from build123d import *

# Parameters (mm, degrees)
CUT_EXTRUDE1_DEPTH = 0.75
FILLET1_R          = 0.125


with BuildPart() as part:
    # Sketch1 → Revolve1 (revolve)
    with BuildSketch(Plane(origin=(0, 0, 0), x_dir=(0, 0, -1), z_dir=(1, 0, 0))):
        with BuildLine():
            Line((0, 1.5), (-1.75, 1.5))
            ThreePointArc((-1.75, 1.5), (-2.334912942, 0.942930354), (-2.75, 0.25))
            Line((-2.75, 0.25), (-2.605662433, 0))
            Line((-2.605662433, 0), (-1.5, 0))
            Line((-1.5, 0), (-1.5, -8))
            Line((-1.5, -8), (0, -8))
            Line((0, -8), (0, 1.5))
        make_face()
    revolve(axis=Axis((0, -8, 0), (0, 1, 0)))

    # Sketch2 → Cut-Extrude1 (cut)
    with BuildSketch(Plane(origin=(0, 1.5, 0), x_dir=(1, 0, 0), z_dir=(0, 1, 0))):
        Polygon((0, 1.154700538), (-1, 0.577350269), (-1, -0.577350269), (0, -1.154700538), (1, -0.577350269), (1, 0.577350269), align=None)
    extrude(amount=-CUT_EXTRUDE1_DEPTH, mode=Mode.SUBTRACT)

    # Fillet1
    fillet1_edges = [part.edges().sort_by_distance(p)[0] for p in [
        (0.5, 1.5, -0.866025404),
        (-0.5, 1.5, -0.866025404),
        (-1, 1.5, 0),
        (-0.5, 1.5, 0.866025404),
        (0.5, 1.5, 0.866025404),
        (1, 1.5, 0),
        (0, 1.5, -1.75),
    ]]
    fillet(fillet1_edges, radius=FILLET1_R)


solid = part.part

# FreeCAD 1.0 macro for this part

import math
import FreeCAD as App
import Part
import Sketcher
Q = App.Units.Quantity


def edges_at(feature, points):
    """Names of the edges that pass closest to the given points."""
    edges = feature.Shape.Edges
    near = lambda p: min(range(len(edges)), key=lambda i: edges[i].distToShape(Part.Vertex(*p))[0])
    return sorted({f"Edge{near(p) + 1}" for p in points})


def add_polygon(sketch, points):
    """Adds a closed chain of lines whose ends are joined by coincident constraints."""
    first, n = sketch.GeometryCount, len(points)
    for a, b in zip(points, points[1:] + points[:1]):
        sketch.addGeometry(Part.LineSegment(App.Vector(*a, 0), App.Vector(*b, 0)), False)
    for i in range(n):
        sketch.addConstraint(Sketcher.Constraint("Coincident", first + i, 2, first + (i + 1) % n, 1))

doc = App.newDocument("Part")
params = doc.addObject("Spreadsheet::Sheet", "Params")
for row, (alias, value) in enumerate([
    ("sketch1_radius", "3 mm"),
    ("sketch1_width", "8 mm"),
    ("sketch1_width2", "9.5 mm"),
    ("sketch1_height", "1.5 mm"),
    ("sketch1_height2", "1.75 mm"),
    ("revolution_angle", "360 deg"),
    ("pocket1_length", "0.75 mm"),
    ("fillet_radius", "0.125 mm"),
], start=1):
    params.set(f"A{row}", alias)
    params.set(f"B{row}", "=" + value)
    params.setAlias(f"B{row}", alias)

body = doc.addObject("PartDesign::Body", "Body")

# Sketch on YZ plane
sketch1 = doc.addObject("Sketcher::SketchObject", "Sketch")
body.addObject(sketch1)
sketch1.AttachmentSupport = (doc.YZ_Plane, [""])
sketch1.MapMode = "FlatFace"
sketch1.addGeometry(Part.LineSegment(App.Vector(1.5, 0, 0), App.Vector(1.5, 1.75, 0)), False)
sketch1.addGeometry(Part.ArcOfCircle(Part.Circle(App.Vector(-0.931155, -0.007693, 0), App.Vector(0, 0, 1), 3), math.radians(35.866443), math.radians(66.813941)), False)
sketch1.addGeometry(Part.LineSegment(App.Vector(0.25, 2.75, 0), App.Vector(0, 2.605662, 0)), False)
sketch1.addGeometry(Part.LineSegment(App.Vector(0, 2.605662, 0), App.Vector(0, 1.5, 0)), False)
sketch1.addGeometry(Part.LineSegment(App.Vector(0, 1.5, 0), App.Vector(-8, 1.5, 0)), False)
sketch1.addGeometry(Part.LineSegment(App.Vector(-8, 1.5, 0), App.Vector(-8, 0, 0)), False)
sketch1.addGeometry(Part.LineSegment(App.Vector(-8, 0, 0), App.Vector(1.5, 0, 0)), False)
sketch1.addConstraint(Sketcher.Constraint("Coincident", 0, 2, 1, 1))
sketch1.addConstraint(Sketcher.Constraint("Coincident", 1, 2, 2, 1))
sketch1.addConstraint(Sketcher.Constraint("Coincident", 2, 2, 3, 1))
sketch1.addConstraint(Sketcher.Constraint("Coincident", 3, 2, 4, 1))
sketch1.addConstraint(Sketcher.Constraint("Coincident", 4, 2, 5, 1))
sketch1.addConstraint(Sketcher.Constraint("Coincident", 5, 2, 6, 1))
sketch1.addConstraint(Sketcher.Constraint("Coincident", 6, 2, 0, 1))
sketch1.addConstraint(Sketcher.Constraint("Vertical", 0))
sketch1.addConstraint(Sketcher.Constraint("Vertical", 3))
sketch1.addConstraint(Sketcher.Constraint("Horizontal", 4))
sketch1.addConstraint(Sketcher.Constraint("Vertical", 5))
sketch1.addConstraint(Sketcher.Constraint("Horizontal", 6))
sketch1.addConstraint(Sketcher.Constraint("PointOnObject", 2, 2, -2))
sketch1.addConstraint(Sketcher.Constraint("PointOnObject", 5, 2, -1))
sketch1.addConstraint(Sketcher.Constraint("Radius", 1, 3.0))
sketch1.addConstraint(Sketcher.Constraint("DistanceX", 4, 2, 4, 1, 8.0))
sketch1.addConstraint(Sketcher.Constraint("Angle", 2, Q("-150 deg")))
sketch1.addConstraint(Sketcher.Constraint("DistanceX", 6, 1, 6, 2, 9.5))
sketch1.addConstraint(Sketcher.Constraint("DistanceY", 5, 2, 5, 1, 1.5))
sketch1.addConstraint(Sketcher.Constraint("DistanceY", 0, 2, 1, 2, 1.0))
sketch1.addConstraint(Sketcher.Constraint("DistanceY", 0, 1, 0, 2, 1.75))
sketch1.addConstraint(Sketcher.Constraint("DistanceX", -1, 1, 1, 2, 0.25))
sketch1.setExpression("Constraints[14]", "Params.sketch1_radius")
sketch1.setExpression("Constraints[15]", "Params.sketch1_width")
sketch1.setExpression("Constraints[17]", "Params.sketch1_width2")
sketch1.setExpression("Constraints[18]", "Params.sketch1_height")
sketch1.setExpression("Constraints[20]", "Params.sketch1_height2")
revolution = doc.addObject("PartDesign::Revolution", "Revolution")
body.addObject(revolution)
revolution.Profile = sketch1
revolution.ReferenceAxis = (sketch1, ["H_Axis"])
revolution.setExpression("Angle", "Params.revolution_angle")

# Sketch on XZ plane
sketch2 = doc.addObject("Sketcher::SketchObject", "Sketch001")
body.addObject(sketch2)
sketch2.AttachmentSupport = (doc.XZ_Plane, [""])
sketch2.MapMode = "FlatFace"
sketch2.AttachmentOffset = App.Placement(App.Vector(0, 0, -1.5), App.Rotation())
add_polygon(sketch2, [(0, -1.154701), (-1, -0.57735), (-1, 0.57735), (0, 1.154701), (1, 0.57735), (1, -0.57735)])  # lines 0-5
sketch2.addConstraint(Sketcher.Constraint("Vertical", 1))
sketch2.addConstraint(Sketcher.Constraint("Vertical", 4))
sketch2.addConstraint(Sketcher.Constraint("Symmetric", 0, 2, 3, 2, -1, 1))
sketch2.addConstraint(Sketcher.Constraint("Symmetric", 2, 2, 5, 2, -1, 1))
sketch2.addConstraint(Sketcher.Constraint("PointOnObject", 2, 2, -2))
sketch2.addConstraint(Sketcher.Constraint("Parallel", 2, 5))
sketch2.addConstraint(Sketcher.Constraint("Horizontal", 1, 2, 3, 2))
sketch2.addConstraint(Sketcher.Constraint("Angle", 0, Q("150 deg")))
sketch2.addConstraint(Sketcher.Constraint("DistanceX", 0, 2, -1, 1, 1.0))
sketch2.addConstraint(Sketcher.Constraint("DistanceY", 1, 1, 1, 2, 1.154701))
pocket1 = doc.addObject("PartDesign::Pocket", "Pocket")
body.addObject(pocket1)
pocket1.Profile = sketch2
pocket1.setExpression("Length", "Params.pocket1_length")
pocket1.Reversed = True
doc.recompute()

fillet = doc.addObject("PartDesign::Fillet", "Fillet")
body.addObject(fillet)
fillet.Base = (pocket1, edges_at(pocket1, [
    (0.5, 1.5, -0.866),
    (-0.5, 1.5, -0.866),
    (-1, 1.5, 0),
    (-0.5, 1.5, 0.866),
    (0.5, 1.5, 0.866),
    (1, 1.5, 0),
    (0, 1.5, -1.75),
]))
fillet.setExpression("Radius", "Params.fillet_radius")

doc.recompute()
